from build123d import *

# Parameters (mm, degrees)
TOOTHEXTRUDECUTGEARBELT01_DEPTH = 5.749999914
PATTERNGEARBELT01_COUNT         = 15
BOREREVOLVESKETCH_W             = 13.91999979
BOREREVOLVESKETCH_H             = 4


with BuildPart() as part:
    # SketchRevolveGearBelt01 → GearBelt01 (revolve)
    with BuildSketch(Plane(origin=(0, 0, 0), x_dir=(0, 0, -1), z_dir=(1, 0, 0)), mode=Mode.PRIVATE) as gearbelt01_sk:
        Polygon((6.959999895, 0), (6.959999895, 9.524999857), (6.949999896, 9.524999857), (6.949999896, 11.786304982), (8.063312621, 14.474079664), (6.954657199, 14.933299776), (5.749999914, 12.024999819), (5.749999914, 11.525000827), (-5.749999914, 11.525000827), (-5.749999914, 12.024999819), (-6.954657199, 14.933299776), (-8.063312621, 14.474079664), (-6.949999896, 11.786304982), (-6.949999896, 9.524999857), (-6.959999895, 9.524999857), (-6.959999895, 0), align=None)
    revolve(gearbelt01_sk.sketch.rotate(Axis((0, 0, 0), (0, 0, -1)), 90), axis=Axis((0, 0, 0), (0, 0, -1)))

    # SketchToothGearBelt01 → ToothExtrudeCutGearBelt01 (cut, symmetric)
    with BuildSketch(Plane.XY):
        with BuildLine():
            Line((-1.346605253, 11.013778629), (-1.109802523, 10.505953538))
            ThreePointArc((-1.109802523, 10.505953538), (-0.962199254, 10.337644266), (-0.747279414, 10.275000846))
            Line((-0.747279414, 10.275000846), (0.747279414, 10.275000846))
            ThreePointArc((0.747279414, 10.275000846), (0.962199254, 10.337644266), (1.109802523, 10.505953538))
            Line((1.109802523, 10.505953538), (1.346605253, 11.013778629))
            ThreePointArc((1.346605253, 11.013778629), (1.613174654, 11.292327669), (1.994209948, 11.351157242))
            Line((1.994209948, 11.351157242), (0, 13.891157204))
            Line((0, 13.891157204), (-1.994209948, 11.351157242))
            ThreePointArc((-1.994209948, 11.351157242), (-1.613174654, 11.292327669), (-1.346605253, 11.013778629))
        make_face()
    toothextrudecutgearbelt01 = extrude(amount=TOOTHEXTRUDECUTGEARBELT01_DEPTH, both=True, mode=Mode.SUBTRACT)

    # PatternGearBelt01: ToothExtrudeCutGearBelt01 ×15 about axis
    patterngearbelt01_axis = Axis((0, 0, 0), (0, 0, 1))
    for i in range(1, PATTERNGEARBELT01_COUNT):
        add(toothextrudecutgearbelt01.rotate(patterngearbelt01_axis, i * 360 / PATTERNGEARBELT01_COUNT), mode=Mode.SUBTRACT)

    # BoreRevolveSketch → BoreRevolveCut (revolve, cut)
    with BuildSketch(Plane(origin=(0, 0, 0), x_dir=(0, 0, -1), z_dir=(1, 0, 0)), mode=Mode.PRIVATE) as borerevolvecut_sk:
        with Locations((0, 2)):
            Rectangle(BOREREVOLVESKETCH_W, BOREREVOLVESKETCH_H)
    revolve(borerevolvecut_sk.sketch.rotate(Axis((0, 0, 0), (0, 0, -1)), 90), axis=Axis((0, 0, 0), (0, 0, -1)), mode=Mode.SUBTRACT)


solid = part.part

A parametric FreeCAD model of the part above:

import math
import FreeCAD as App
import Part
import Sketcher
from FreeCAD import Vector
Q = App.Units.Quantity


def add_polygon(sketch, points):
    """Adds a closed chain of lines whose ends are joined by coincident constraints."""
    first, n = sketch.GeometryCount, len(points)
    for a, b in zip(points, points[1:] + points[:1]):
        sketch.addGeometry(Part.LineSegment(App.Vector(*a, 0), App.Vector(*b, 0)), False)
    for i in range(n):
        sketch.addConstraint(Sketcher.Constraint("Coincident", first + i, 2, first + (i + 1) % n, 1))

doc = App.newDocument("Part")
body = doc.addObject("PartDesign::Body", "Body")

# Sketch on YZ plane
sketch1 = body.newObject("Sketcher::SketchObject", "Sketch")
sketch1.AttachmentSupport = (doc.getObject("YZ_Plane"), [""])
sketch1.MapMode = "FlatFace"
add_polygon(sketch1, [(0, -6.96), (9.525, -6.96), (9.525, -6.95), (11.786, -6.95), (14.474, -8.063), (14.933, -6.955), (12.025, -5.75), (11.525, -5.75), (11.525, 5.75), (12.025, 5.75), (14.933, 6.955), (14.474, 8.063), (11.786, 6.95), (9.525, 6.95), (9.525, 6.96), (0, 6.96)])  # lines 0-15
sketch1.addConstraint([
    Sketcher.Constraint("Horizontal", 0),
    Sketcher.Constraint("Vertical", 1),
    Sketcher.Constraint("Horizontal", 2),
    Sketcher.Constraint("Horizontal", 6),
    Sketcher.Constraint("Vertical", 7),
    Sketcher.Constraint("Horizontal", 8),
    Sketcher.Constraint("Horizontal", 12),
    Sketcher.Constraint("Vertical", 13),
    Sketcher.Constraint("Horizontal", 14),
    Sketcher.Constraint("Vertical", 15),
    Sketcher.Constraint("Symmetric", 14, 2, 15, 2, -1, 1),
    Sketcher.Constraint("Symmetric", 5, 2, 8, 2, -1),
    Sketcher.Constraint("Symmetric", 4, 2, 9, 2, -1),
    Sketcher.Constraint("Symmetric", 3, 2, 10, 2, -1),
    Sketcher.Constraint("Symmetric", 2, 2, 11, 2, -1),
    Sketcher.Constraint("Perpendicular", 3, 4),
    Sketcher.Constraint("Perpendicular", 4, 5),
    Sketcher.Constraint("Vertical", 1, 2, 12, 2),
    Sketcher.Constraint("DistanceX", 6, 2, 6, 1, Q("0.499999 mm")),
    Sketcher.Constraint("DistanceY", 7, 1, 7, 2, Q("11.5 mm")),
    Sketcher.Constraint("Angle", 3, Q("-22.5 deg")),
    Sketcher.Constraint("DistanceX", 1, 2, 6, 2, Q("2.000001 mm")),
    Sketcher.Constraint("Distance", 4, Q("1.2 mm")),
    Sketcher.Constraint("DistanceY", 1, 1, 1, 2, Q("0.01 mm")),
    Sketcher.Constraint("DistanceY", 15, 2, 15, 1, Q("13.92 mm")),
    Sketcher.Constraint("DistanceX", 0, 1, 0, 2, Q("9.525 mm")),
    Sketcher.Constraint("DistanceX", -1, 1, 4, 2, Q("14.9333 mm")),
])
revolution = body.newObject("PartDesign::Revolution", "Revolution")
revolution.Profile = sketch1
revolution.ReferenceAxis = (sketch1, ["V_Axis"])
revolution.Angle = 360

# Sketch on XY plane
sketch2 = body.newObject("Sketcher::SketchObject", "Sketch001")
sketch2.AttachmentSupport = (doc.getObject("XY_Plane"), [""])
sketch2.MapMode = "FlatFace"
sketch2.addGeometry([
    Part.LineSegment(Vector(-1.35, 11.01, 0), Vector(-1.11, 10.51, 0)),  # 0
    Part.ArcOfCircle(Part.Circle(Vector(-0.75, 10.68, 0), Vector(0, 0, 1), 0.4), math.radians(-155), math.radians(-90)),  # 1
    Part.LineSegment(Vector(-0.75, 10.28, 0), Vector(0.75, 10.28, 0)),  # 2
    Part.ArcOfCircle(Part.Circle(Vector(0.75, 10.68, 0), Vector(0, 0, 1), 0.4), math.radians(-90), math.radians(-25)),  # 3
    Part.LineSegment(Vector(1.11, 10.51, 0), Vector(1.35, 11.01, 0)),  # 4
    Part.ArcOfCircle(Part.Circle(Vector(1.89, 10.76, 0), Vector(0, 0, 1), 0.6), math.radians(80), math.radians(155)),  # 5
    Part.LineSegment(Vector(1.99, 11.35, 0), Vector(0, 13.89, 0)),  # 6
    Part.LineSegment(Vector(0, 13.89, 0), Vector(-1.99, 11.35, 0)),  # 7
    Part.ArcOfCircle(Part.Circle(Vector(-1.89, 10.76, 0), Vector(0, 0, 1), 0.6), math.radians(25), math.radians(100)),  # 8
], False)
sketch2.addConstraint([
    Sketcher.Constraint("Tangent", 0, 2, 1, 1),
    Sketcher.Constraint("Tangent", 1, 2, 2, 1),
    Sketcher.Constraint("Tangent", 2, 2, 3, 1),
    Sketcher.Constraint("Tangent", 3, 2, 4, 1),
    Sketcher.Constraint("Tangent", 4, 2, 5, 2),
    Sketcher.Constraint("Coincident", 5, 1, 6, 1),
    Sketcher.Constraint("Coincident", 6, 2, 7, 1),
    Sketcher.Constraint("Coincident", 7, 2, 8, 2),
    Sketcher.Constraint("Tangent", 8, 1, 0, 1),
    Sketcher.Constraint("Horizontal", 2),
    Sketcher.Constraint("Equal", 1, 3),
    Sketcher.Constraint("Equal", 5, 8),
    Sketcher.Constraint("Symmetric", 5, 3, 8, 3, -2),
    Sketcher.Constraint("PointOnObject", 6, 2, -2),
    Sketcher.Constraint("Horizontal", 0, 2, 3, 2),
    Sketcher.Constraint("Horizontal", 5, 1, 7, 2),
    Sketcher.Constraint("Radius", 1, Q("0.4 mm")),
    Sketcher.Constraint("Radius", 5, Q("0.6 mm")),
    Sketcher.Constraint("Angle", 0, Q("-65 deg")),
    Sketcher.Constraint("DistanceY", 5, 1, 6, 2, Q("2.54 mm")),
    Sketcher.Constraint("DistanceY", -1, 1, 1, 3, Q("10.675001 mm")),
    Sketcher.Constraint("DistanceX", 2, 1, 2, 2, Q("1.494559 mm")),
    Sketcher.Constraint("DistanceX", -1, 1, 5, 3, Q("1.89039 mm")),
    Sketcher.Constraint("DistanceX", -1, 1, 5, 1, Q("1.99421 mm")),
])
pocket1 = body.newObject("PartDesign::Pocket", "Pocket")
pocket1.Profile = sketch2
pocket1.Length = 11.5
pocket1.Midplane = True
doc.recompute()

polarpattern = body.newObject("PartDesign::PolarPattern", "PolarPattern")
polarpattern.Originals = [pocket1]
polarpattern.Axis = (doc.getObject("Z_Axis"), [""])
polarpattern.Angle = 360
polarpattern.Occurrences = 15
body.Tip = polarpattern

# Sketch on YZ plane
sketch3 = body.newObject("Sketcher::SketchObject", "Sketch002")
sketch3.AttachmentSupport = (doc.getObject("YZ_Plane"), [""])
sketch3.MapMode = "FlatFace"
add_polygon(sketch3, [(4, 7), (0, 7), (0, -7), (4, -7)])  # lines 0-3
sketch3.addConstraint([
    Sketcher.Constraint("Horizontal", 0),
    Sketcher.Constraint("Vertical", 1),
    Sketcher.Constraint("Horizontal", 2),
    Sketcher.Constraint("Vertical", 3),
    Sketcher.Constraint("Symmetric", 0, 2, 1, 2, -1, 1),
    Sketcher.Constraint("DistanceX", 0, 2, 0, 1, Q("4 mm")),
    Sketcher.Constraint("DistanceY", 1, 2, 1, 1, Q("13.92 mm")),
])
groove = body.newObject("PartDesign::Groove", "Groove")
groove.Profile = sketch3
groove.ReferenceAxis = (sketch3, ["V_Axis"])
groove.Angle = 360

doc.recompute()
